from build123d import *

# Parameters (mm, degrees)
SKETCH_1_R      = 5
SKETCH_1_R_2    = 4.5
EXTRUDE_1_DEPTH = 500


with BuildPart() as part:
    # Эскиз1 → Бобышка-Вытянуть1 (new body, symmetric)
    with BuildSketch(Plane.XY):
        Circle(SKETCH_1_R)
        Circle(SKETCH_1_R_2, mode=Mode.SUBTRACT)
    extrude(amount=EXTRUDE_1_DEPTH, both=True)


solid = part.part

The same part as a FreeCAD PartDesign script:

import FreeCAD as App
import Part
import Sketcher
Q = App.Units.Quantity

doc = App.newDocument("Part")
body = doc.addObject("PartDesign::Body", "Body")

# Sketch on XY plane
sketch1 = doc.addObject("Sketcher::SketchObject", "Sketch")
body.addObject(sketch1)
sketch1.AttachmentSupport = (doc.XY_Plane, [""])
sketch1.MapMode = "FlatFace"
sketch1.addGeometry([
    Part.Circle(App.Vector(0, 0, 0), App.Vector(0, 0, 1), 5),
    Part.Circle(App.Vector(0, 0, 0), App.Vector(0, 0, 1), 4.5),
], False)
sketch1.addConstraint([
    Sketcher.Constraint("Coincident", 0, 3, -1, 1),
    Sketcher.Constraint("Coincident", 1, 3, -1, 1),
    Sketcher.Constraint("Diameter", 0, Q("10 mm")),
    Sketcher.Constraint("Diameter", 1, Q("9 mm")),
])
pad1 = doc.addObject("PartDesign::Pad", "Pad")
body.addObject(pad1)
pad1.Profile = sketch1
pad1.Length = 1000
pad1.Midplane = True

doc.recompute()
